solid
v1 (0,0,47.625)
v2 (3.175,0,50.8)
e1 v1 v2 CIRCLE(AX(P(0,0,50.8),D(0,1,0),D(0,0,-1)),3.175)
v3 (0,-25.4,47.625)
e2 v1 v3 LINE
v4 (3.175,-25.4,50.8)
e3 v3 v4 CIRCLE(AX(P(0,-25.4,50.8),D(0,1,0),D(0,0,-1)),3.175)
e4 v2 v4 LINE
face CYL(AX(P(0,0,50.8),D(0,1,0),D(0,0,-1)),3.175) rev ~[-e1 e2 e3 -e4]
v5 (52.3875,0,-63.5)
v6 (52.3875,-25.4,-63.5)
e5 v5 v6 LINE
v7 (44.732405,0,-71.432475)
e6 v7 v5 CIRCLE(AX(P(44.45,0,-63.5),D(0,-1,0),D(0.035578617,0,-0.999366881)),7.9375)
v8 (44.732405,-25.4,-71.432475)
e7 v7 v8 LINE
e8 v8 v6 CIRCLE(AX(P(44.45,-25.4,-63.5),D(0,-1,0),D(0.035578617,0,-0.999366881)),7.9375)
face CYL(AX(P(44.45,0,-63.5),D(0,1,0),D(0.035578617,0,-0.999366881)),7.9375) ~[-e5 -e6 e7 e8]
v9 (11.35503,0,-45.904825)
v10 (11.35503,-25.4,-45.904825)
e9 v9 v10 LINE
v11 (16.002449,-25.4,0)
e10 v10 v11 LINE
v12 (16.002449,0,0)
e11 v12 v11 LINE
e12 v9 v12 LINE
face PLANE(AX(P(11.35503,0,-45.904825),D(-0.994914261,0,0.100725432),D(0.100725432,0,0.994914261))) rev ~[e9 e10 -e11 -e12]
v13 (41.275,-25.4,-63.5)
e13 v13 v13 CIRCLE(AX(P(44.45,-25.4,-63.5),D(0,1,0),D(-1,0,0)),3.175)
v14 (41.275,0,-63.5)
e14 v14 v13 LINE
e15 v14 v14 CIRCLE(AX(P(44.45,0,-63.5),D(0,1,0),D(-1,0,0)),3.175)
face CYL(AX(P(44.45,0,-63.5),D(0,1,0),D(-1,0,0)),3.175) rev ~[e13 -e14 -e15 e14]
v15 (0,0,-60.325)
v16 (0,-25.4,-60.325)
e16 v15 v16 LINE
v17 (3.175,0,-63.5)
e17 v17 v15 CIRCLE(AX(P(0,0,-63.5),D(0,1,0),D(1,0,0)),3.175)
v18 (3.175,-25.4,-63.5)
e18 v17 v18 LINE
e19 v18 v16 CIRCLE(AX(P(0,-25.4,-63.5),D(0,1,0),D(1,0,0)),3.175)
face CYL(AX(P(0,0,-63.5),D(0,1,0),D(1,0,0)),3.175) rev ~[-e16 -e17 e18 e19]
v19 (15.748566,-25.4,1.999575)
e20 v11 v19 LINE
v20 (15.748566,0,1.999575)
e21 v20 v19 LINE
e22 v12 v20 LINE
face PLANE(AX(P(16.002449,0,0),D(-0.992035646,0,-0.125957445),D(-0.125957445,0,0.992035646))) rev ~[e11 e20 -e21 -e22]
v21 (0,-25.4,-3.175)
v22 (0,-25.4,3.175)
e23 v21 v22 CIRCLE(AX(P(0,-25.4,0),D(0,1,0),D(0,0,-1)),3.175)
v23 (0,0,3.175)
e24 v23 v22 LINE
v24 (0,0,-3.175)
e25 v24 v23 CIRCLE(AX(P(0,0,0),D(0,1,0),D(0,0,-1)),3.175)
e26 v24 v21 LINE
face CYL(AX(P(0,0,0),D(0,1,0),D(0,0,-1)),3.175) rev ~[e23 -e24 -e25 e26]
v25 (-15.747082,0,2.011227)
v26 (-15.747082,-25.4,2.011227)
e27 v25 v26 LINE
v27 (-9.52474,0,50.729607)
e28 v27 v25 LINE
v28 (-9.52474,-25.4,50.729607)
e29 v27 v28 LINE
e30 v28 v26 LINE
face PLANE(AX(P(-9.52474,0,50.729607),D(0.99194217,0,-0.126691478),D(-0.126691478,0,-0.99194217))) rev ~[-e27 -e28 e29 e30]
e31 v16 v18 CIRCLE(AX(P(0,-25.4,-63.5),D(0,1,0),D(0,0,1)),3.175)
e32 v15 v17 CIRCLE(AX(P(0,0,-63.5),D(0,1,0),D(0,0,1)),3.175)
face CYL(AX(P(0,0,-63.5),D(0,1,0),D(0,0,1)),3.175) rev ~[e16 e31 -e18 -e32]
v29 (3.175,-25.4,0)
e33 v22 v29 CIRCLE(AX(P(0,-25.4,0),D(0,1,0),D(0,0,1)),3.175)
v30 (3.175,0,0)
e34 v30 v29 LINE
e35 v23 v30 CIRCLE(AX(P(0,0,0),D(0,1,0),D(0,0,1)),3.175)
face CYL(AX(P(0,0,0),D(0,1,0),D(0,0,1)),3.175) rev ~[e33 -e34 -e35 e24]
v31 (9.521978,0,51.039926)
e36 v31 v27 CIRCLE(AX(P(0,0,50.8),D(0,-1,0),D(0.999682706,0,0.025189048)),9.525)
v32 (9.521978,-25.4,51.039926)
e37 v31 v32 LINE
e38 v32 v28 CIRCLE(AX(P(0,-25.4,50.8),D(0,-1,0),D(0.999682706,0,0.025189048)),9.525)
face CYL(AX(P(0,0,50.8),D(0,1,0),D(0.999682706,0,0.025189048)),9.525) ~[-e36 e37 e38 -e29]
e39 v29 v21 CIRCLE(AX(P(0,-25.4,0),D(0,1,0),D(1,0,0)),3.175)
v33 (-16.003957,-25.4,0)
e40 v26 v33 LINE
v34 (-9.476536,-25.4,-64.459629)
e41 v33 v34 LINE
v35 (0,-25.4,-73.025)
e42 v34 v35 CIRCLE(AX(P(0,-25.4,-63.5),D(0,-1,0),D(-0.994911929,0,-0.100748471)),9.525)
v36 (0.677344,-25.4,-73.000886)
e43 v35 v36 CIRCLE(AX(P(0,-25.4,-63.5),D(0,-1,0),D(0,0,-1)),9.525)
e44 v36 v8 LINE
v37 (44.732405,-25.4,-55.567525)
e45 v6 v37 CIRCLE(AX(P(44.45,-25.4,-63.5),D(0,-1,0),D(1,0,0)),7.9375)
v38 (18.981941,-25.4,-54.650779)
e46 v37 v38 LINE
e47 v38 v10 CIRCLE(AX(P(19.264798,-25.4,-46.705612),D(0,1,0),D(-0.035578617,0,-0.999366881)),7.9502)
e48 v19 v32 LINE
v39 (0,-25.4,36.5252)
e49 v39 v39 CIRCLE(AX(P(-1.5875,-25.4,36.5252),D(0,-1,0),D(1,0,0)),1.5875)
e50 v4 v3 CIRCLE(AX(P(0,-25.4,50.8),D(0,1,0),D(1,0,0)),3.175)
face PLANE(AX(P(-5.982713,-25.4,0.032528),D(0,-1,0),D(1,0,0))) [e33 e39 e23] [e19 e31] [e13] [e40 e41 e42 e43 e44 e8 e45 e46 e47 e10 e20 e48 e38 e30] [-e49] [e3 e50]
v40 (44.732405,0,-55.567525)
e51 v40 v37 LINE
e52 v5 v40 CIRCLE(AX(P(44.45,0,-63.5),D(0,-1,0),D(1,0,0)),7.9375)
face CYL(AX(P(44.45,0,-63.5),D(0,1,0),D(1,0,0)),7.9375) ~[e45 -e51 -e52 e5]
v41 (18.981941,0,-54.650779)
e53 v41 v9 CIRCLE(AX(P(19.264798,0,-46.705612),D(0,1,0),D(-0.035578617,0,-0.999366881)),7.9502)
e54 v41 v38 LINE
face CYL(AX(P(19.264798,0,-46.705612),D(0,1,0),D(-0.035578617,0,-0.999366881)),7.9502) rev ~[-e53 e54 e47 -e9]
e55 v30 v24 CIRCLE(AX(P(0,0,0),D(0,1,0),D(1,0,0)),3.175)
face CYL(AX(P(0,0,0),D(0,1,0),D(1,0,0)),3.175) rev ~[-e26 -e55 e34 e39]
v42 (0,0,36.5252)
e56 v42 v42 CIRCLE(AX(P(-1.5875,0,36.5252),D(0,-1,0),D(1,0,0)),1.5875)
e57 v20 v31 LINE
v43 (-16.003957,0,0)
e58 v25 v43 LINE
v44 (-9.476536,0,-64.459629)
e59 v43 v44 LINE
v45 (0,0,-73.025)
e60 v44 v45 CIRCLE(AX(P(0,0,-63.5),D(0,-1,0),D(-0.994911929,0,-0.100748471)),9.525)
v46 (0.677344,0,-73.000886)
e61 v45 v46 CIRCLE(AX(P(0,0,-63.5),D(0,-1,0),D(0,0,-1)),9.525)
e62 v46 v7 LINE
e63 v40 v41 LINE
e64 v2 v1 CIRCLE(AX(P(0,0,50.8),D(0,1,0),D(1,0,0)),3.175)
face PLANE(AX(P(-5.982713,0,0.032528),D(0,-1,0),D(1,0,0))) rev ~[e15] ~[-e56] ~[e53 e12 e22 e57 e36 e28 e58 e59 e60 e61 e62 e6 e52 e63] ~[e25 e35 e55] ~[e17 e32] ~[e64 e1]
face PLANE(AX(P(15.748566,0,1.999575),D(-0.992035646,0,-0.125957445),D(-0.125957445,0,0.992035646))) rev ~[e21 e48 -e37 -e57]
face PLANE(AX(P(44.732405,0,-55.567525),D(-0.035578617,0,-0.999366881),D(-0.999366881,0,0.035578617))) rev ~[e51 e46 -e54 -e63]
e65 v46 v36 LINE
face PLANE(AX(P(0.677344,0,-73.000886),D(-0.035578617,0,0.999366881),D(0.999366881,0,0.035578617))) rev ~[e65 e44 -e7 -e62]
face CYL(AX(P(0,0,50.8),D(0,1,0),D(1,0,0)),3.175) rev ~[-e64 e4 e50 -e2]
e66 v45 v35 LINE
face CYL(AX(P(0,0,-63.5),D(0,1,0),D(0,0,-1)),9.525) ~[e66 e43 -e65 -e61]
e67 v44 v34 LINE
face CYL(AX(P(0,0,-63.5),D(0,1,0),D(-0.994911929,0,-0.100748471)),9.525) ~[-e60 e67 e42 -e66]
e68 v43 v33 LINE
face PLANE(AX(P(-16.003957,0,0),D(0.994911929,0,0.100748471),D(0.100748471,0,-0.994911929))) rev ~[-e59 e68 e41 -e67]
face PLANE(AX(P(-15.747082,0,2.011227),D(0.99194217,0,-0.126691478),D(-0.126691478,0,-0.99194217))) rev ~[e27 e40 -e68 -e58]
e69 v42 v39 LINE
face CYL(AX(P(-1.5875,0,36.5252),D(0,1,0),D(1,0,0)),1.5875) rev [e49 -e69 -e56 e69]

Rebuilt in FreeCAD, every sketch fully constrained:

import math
import FreeCAD as App
import Part
import Sketcher
Q = App.Units.Quantity

doc = App.newDocument("Part")
body = doc.addObject("PartDesign::Body", "Body")

sketch1 = body.newObject("Sketcher::SketchObject", "Sketch")
sketch1.AttachmentSupport = (doc.getObject("XZ_Plane"), [""])
sketch1.MapMode = "FlatFace"
sketch1.addGeometry(Part.ArcOfCircle(Part.Circle(App.Vector(0, -63.5, 0), App.Vector(0, 0, 1), 9.525), math.radians(-174.217728), math.radians(-90)), False)
sketch1.addGeometry(Part.ArcOfCircle(Part.Circle(App.Vector(0, -63.5, 0), App.Vector(0, 0, 1), 9.525), math.radians(-90), math.radians(-85.92213)), False)
sketch1.addGeometry(Part.LineSegment(App.Vector(0.677344, -73.000886, 0), App.Vector(44.732405, -71.432475, 0)), False)
sketch1.addGeometry(Part.ArcOfCircle(Part.Circle(App.Vector(44.45, -63.5, 0), App.Vector(0, 0, 1), 7.9375), math.radians(-87.961065), math.radians(0)), False)
sketch1.addGeometry(Part.ArcOfCircle(Part.Circle(App.Vector(44.45, -63.5, 0), App.Vector(0, 0, 1), 7.9375), math.radians(0), math.radians(87.961065)), False)
sketch1.addGeometry(Part.LineSegment(App.Vector(44.732405, -55.567525, 0), App.Vector(18.981941, -54.650779, 0)), False)
sketch1.addGeometry(Part.ArcOfCircle(Part.Circle(App.Vector(19.264798, -46.705612, 0), App.Vector(0, 0, 1), 7.9502), math.radians(174.219054), math.radians(267.961065)), False)
sketch1.addGeometry(Part.LineSegment(App.Vector(11.35503, -45.904825, 0), App.Vector(16.002449, 0, 0)), False)
sketch1.addGeometry(Part.LineSegment(App.Vector(16.002449, 0, 0), App.Vector(15.748566, 1.999575, 0)), False)
sketch1.addGeometry(Part.LineSegment(App.Vector(15.748566, 1.999575, 0), App.Vector(9.521978, 51.039926, 0)), False)
sketch1.addGeometry(Part.ArcOfCircle(Part.Circle(App.Vector(0, 50.8, 0), App.Vector(0, 0, 1), 9.525), math.radians(1.443379), math.radians(180.423441)), False)
sketch1.addGeometry(Part.LineSegment(App.Vector(-9.52474, 50.729607, 0), App.Vector(-15.747082, 2.011227, 0)), False)
sketch1.addGeometry(Part.LineSegment(App.Vector(-15.747082, 2.011227, 0), App.Vector(-16.003957, 0, 0)), False)
sketch1.addGeometry(Part.LineSegment(App.Vector(-16.003957, 0, 0), App.Vector(-9.476536, -64.459629, 0)), False)
sketch1.addGeometry(Part.ArcOfCircle(Part.Circle(App.Vector(0, -63.5, 0), App.Vector(0, 0, 1), 3.175), math.radians(90), math.radians(360)), False)
sketch1.addGeometry(Part.ArcOfCircle(Part.Circle(App.Vector(0, -63.5, 0), App.Vector(0, 0, 1), 3.175), math.radians(0), math.radians(90)), False)
sketch1.addGeometry(Part.Circle(App.Vector(44.45, -63.5, 0), App.Vector(0, 0, 1), 3.175), False)
sketch1.addGeometry(Part.ArcOfCircle(Part.Circle(App.Vector(0, 0, 0), App.Vector(0, 0, 1), 3.175), math.radians(90), math.radians(270)), False)
sketch1.addGeometry(Part.ArcOfCircle(Part.Circle(App.Vector(0, 0, 0), App.Vector(0, 0, 1), 3.175), math.radians(0), math.radians(90)), False)
sketch1.addGeometry(Part.ArcOfCircle(Part.Circle(App.Vector(0, 0, 0), App.Vector(0, 0, 1), 3.175), math.radians(-90), math.radians(0)), False)
sketch1.addGeometry(Part.Circle(App.Vector(-1.5875, 36.5252, 0), App.Vector(0, 0, 1), 1.5875), False)
sketch1.addGeometry(Part.ArcOfCircle(Part.Circle(App.Vector(0, 50.8, 0), App.Vector(0, 0, 1), 3.175), math.radians(0), math.radians(270)), False)
sketch1.addGeometry(Part.ArcOfCircle(Part.Circle(App.Vector(0, 50.8, 0), App.Vector(0, 0, 1), 3.175), math.radians(-90), math.radians(0)), False)
sketch1.addConstraint(Sketcher.Constraint("Coincident", 0, 2, 1, 1))
sketch1.addConstraint(Sketcher.Constraint("Coincident", 1, 2, 2, 1))
sketch1.addConstraint(Sketcher.Constraint("Coincident", 2, 2, 3, 1))
sketch1.addConstraint(Sketcher.Constraint("Coincident", 3, 2, 4, 1))
sketch1.addConstraint(Sketcher.Constraint("Coincident", 4, 2, 5, 1))
sketch1.addConstraint(Sketcher.Constraint("Coincident", 5, 2, 6, 2))
sketch1.addConstraint(Sketcher.Constraint("Coincident", 6, 1, 7, 1))
sketch1.addConstraint(Sketcher.Constraint("Coincident", 7, 2, 8, 1))
sketch1.addConstraint(Sketcher.Constraint("Coincident", 8, 2, 9, 1))
sketch1.addConstraint(Sketcher.Constraint("Coincident", 9, 2, 10, 1))
sketch1.addConstraint(Sketcher.Constraint("Coincident", 10, 2, 11, 1))
sketch1.addConstraint(Sketcher.Constraint("Coincident", 11, 2, 12, 1))
sketch1.addConstraint(Sketcher.Constraint("Coincident", 12, 2, 13, 1))
sketch1.addConstraint(Sketcher.Constraint("Coincident", 13, 2, 0, 1))
sketch1.addConstraint(Sketcher.Constraint("Coincident", 14, 1, 15, 2))
sketch1.addConstraint(Sketcher.Constraint("Coincident", 15, 1, 14, 2))
sketch1.addConstraint(Sketcher.Constraint("Coincident", 17, 1, 18, 2))
sketch1.addConstraint(Sketcher.Constraint("Coincident", 18, 1, 19, 2))
sketch1.addConstraint(Sketcher.Constraint("Coincident", 19, 1, 17, 2))
sketch1.addConstraint(Sketcher.Constraint("Coincident", 21, 1, 22, 2))
sketch1.addConstraint(Sketcher.Constraint("Coincident", 22, 1, 21, 2))
sketch1.addConstraint(Sketcher.Constraint("Coincident", 17, 3, -1, 1))
sketch1.addConstraint(Sketcher.Constraint("Coincident", 18, 3, -1, 1))
sketch1.addConstraint(Sketcher.Constraint("Coincident", 1, 3, 0, 3))
sketch1.addConstraint(Sketcher.Constraint("Coincident", 4, 3, 3, 3))
sketch1.addConstraint(Sketcher.Constraint("Coincident", 14, 3, 0, 3))
sketch1.addConstraint(Sketcher.Constraint("Coincident", 16, 3, 3, 3))
sketch1.addConstraint(Sketcher.Constraint("Coincident", 21, 3, 10, 3))
sketch1.addConstraint(Sketcher.Constraint("PointOnObject", 0, 3, -2))
sketch1.addConstraint(Sketcher.Constraint("PointOnObject", 10, 3, -2))
sketch1.addConstraint(Sketcher.Constraint("PointOnObject", 15, 3, -2))
sketch1.addConstraint(Sketcher.Constraint("PointOnObject", 22, 3, -2))
sketch1.addConstraint(Sketcher.Constraint("PointOnObject", 0, 2, -2))
sketch1.addConstraint(Sketcher.Constraint("PointOnObject", 7, 2, -1))
sketch1.addConstraint(Sketcher.Constraint("PointOnObject", 12, 2, -1))
sketch1.addConstraint(Sketcher.Constraint("PointOnObject", 14, 1, -2))
sketch1.addConstraint(Sketcher.Constraint("PointOnObject", 17, 1, -2))
sketch1.addConstraint(Sketcher.Constraint("PointOnObject", 18, 1, -1))
sketch1.addConstraint(Sketcher.Constraint("PointOnObject", 19, 1, -2))
sketch1.addConstraint(Sketcher.Constraint("PointOnObject", 22, 1, -2))
sketch1.addConstraint(Sketcher.Constraint("Diameter", 16, Q("0.25 in")))
sketch1.addConstraint(Sketcher.Constraint("Diameter", 20, Q("0.125 in")))
sketch1.addConstraint(Sketcher.Constraint("DistanceY", -1, 1, 10, 3, Q("2 in")))
sketch1.addConstraint(Sketcher.Constraint("DistanceY", -1, 1, 21, 1, Q("2 in")))
sketch1.addConstraint(Sketcher.Constraint("Radius", 0, Q("0.375 in")))
sketch1.addConstraint(Sketcher.Constraint("Radius", 3, Q("0.3125 in")))
sketch1.addConstraint(Sketcher.Constraint("Radius", 6, Q("0.313 in")))
sketch1.addConstraint(Sketcher.Constraint("Radius", 10, Q("0.375 in")))
sketch1.addConstraint(Sketcher.Constraint("Radius", 14, Q("0.125 in")))
sketch1.addConstraint(Sketcher.Constraint("Radius", 17, Q("0.125 in")))
sketch1.addConstraint(Sketcher.Constraint("Radius", 19, Q("0.125 in")))
sketch1.addConstraint(Sketcher.Constraint("Radius", 21, Q("0.125 in")))
sketch1.addConstraint(Sketcher.Constraint("DistanceY", 0, 3, -1, 1, Q("2.5 in")))
sketch1.addConstraint(Sketcher.Constraint("DistanceY", 3, 3, -1, 1, Q("2.5 in")))
sketch1.addConstraint(Sketcher.Constraint("DistanceY", 3, 2, -1, 1, Q("2.5 in")))
sketch1.addConstraint(Sketcher.Constraint("DistanceY", 15, 1, -1, 1, Q("2.5 in")))
sketch1.addConstraint(Sketcher.Constraint("DistanceX", -1, 1, 3, 3, Q("1.75 in")))
sketch1.addConstraint(Sketcher.Constraint("DistanceX", 20, 3, -1, 1, Q("0.0625 in")))
sketch1.addConstraint(Sketcher.Constraint("DistanceY", -1, 1, 20, 3, Q("1.438 in")))
sketch1.addConstraint(Sketcher.Constraint("Distance", 2, 44.082972))
sketch1.addConstraint(Sketcher.Constraint("Distance", 5, 25.766778))
sketch1.addConstraint(Sketcher.Constraint("Distance", 7, 46.139478))
sketch1.addConstraint(Sketcher.Constraint("Distance", 9, 49.434061))
sketch1.addConstraint(Sketcher.Constraint("Distance", 13, 64.789282))
sketch1.addConstraint(Sketcher.Constraint("DistanceX", -1, 1, 5, 2, 18.981941))
sketch1.addConstraint(Sketcher.Constraint("DistanceY", 5, 2, -1, 1, 54.650779))
sketch1.addConstraint(Sketcher.Constraint("DistanceX", -1, 1, 6, 1, 11.35503))
sketch1.addConstraint(Sketcher.Constraint("DistanceX", -1, 1, 7, 2, 16.002449))
sketch1.addConstraint(Sketcher.Constraint("DistanceX", 10, 2, -1, 1, 9.52474))
sketch1.addConstraint(Sketcher.Constraint("DistanceX", 11, 2, -1, 1, 15.747082))
sketch1.addConstraint(Sketcher.Constraint("DistanceY", 13, 2, -1, 1, 64.459629))
sketch1.addConstraint(Sketcher.Constraint("DistanceY", 1, 2, 2, 2, 1.568411))
sketch1.addConstraint(Sketcher.Constraint("DistanceX", 9, 2, 8, 2, 6.226588))
sketch1.addConstraint(Sketcher.Constraint("DistanceY", 10, 2, 9, 2, 0.310319))
sketch1.addConstraint(Sketcher.Constraint("Distance", 11, 49.114133))
pad1 = body.newObject("PartDesign::Pad", "Pad")
pad1.Profile = sketch1
pad1.Length = Q("1 in")

doc.recompute()
